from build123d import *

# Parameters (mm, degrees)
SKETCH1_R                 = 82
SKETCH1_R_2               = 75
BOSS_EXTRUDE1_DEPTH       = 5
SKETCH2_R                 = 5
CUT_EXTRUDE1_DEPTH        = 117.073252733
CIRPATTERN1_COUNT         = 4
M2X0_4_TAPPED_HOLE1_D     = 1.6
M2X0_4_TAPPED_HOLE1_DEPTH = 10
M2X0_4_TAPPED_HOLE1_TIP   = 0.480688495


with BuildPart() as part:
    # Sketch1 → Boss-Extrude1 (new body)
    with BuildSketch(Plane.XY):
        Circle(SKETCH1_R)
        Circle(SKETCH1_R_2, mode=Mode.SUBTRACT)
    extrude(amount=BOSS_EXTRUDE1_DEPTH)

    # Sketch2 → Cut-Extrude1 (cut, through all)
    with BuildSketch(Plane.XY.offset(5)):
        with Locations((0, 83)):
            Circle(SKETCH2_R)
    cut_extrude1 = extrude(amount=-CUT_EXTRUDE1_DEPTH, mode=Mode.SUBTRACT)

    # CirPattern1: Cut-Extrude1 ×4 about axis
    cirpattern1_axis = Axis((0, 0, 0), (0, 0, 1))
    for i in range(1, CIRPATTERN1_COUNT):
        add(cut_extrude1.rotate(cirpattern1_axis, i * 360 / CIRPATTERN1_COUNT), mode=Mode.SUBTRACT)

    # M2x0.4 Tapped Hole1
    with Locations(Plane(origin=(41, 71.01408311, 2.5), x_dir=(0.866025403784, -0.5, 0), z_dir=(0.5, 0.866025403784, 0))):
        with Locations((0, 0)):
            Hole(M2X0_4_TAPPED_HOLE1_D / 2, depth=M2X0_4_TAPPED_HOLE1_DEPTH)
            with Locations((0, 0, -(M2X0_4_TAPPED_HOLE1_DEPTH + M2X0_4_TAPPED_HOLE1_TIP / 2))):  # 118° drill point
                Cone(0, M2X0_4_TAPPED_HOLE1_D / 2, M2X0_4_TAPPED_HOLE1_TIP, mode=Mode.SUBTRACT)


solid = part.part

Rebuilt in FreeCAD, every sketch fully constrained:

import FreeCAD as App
import Part
import Sketcher

doc = App.newDocument("Part")
body = doc.addObject("PartDesign::Body", "Body")

# Sketch on XY plane
sketch1 = body.newObject("Sketcher::SketchObject", "Sketch")
sketch1.AttachmentSupport = (doc.getObject("XY_Plane"), [""])
sketch1.MapMode = "FlatFace"
sketch1.addGeometry([
    Part.Circle(App.Vector(0, 0, 0), App.Vector(0, 0, 1), 82),
    Part.Circle(App.Vector(0, 0, 0), App.Vector(0, 0, 1), 75),
], False)
sketch1.addConstraint([
    Sketcher.Constraint("Coincident", 0, 3, -1, 1),
    Sketcher.Constraint("Coincident", 1, 3, -1, 1),
    Sketcher.Constraint("Diameter", 0, 164.0),
    Sketcher.Constraint("Diameter", 1, 150.0),
])
pad1 = body.newObject("PartDesign::Pad", "Pad")
pad1.Profile = sketch1
pad1.Length = 5

# Sketch on XY plane
sketch2 = body.newObject("Sketcher::SketchObject", "Sketch001")
sketch2.AttachmentSupport = (doc.getObject("XY_Plane"), [""])
sketch2.MapMode = "FlatFace"
sketch2.AttachmentOffset = App.Placement(App.Vector(0, 0, 5), App.Rotation())
sketch2.addGeometry(Part.Circle(App.Vector(0, 83, 0), App.Vector(0, 0, 1), 5), False)
sketch2.addConstraint([
    Sketcher.Constraint("PointOnObject", 0, 3, -2),
    Sketcher.Constraint("Diameter", 0, 10.0),
    Sketcher.Constraint("DistanceY", -1, 1, 0, 3, 83.0),
])
pocket1 = body.newObject("PartDesign::Pocket", "Pocket")
pocket1.Profile = sketch2
pocket1.Type = "ThroughAll"
doc.recompute()

polarpattern = body.newObject("PartDesign::PolarPattern", "PolarPattern")
polarpattern.Originals = [pocket1]
polarpattern.Axis = (doc.getObject("Z_Axis"), [""])
polarpattern.Angle = 360
polarpattern.Occurrences = 4
body.Tip = polarpattern

# Sketch on an angled plane
sketch3 = body.newObject("Sketcher::SketchObject", "Sketch002")
sketch3.Placement = App.Placement(App.Vector(41, 71.014083, 0), App.Rotation(App.Vector(0.866025404, -0.5, 0), App.Vector(0, 0, -1), App.Vector(0.5, 0.866025404, 0), "ZXY"))
sketch3.addGeometry(Part.Circle(App.Vector(0, -2.5, 0), App.Vector(0, 0, 1), 0.8), False)
sketch3.addConstraint([
    Sketcher.Constraint("PointOnObject", 0, 3, -2),
    Sketcher.Constraint("Diameter", 0, 1.6),
    Sketcher.Constraint("DistanceY", 0, 3, -1, 1, 2.5),
])
doc.recompute()
hole = body.newObject("PartDesign::Hole", "Hole")
hole.Profile = sketch3
hole.ThreadType = "None"
hole.Diameter = 1.6
hole.DepthType = "Dimension"
hole.Depth = 10
hole.DrillPoint = "Angled"
hole.DrillPointAngle = 118

doc.recompute()
